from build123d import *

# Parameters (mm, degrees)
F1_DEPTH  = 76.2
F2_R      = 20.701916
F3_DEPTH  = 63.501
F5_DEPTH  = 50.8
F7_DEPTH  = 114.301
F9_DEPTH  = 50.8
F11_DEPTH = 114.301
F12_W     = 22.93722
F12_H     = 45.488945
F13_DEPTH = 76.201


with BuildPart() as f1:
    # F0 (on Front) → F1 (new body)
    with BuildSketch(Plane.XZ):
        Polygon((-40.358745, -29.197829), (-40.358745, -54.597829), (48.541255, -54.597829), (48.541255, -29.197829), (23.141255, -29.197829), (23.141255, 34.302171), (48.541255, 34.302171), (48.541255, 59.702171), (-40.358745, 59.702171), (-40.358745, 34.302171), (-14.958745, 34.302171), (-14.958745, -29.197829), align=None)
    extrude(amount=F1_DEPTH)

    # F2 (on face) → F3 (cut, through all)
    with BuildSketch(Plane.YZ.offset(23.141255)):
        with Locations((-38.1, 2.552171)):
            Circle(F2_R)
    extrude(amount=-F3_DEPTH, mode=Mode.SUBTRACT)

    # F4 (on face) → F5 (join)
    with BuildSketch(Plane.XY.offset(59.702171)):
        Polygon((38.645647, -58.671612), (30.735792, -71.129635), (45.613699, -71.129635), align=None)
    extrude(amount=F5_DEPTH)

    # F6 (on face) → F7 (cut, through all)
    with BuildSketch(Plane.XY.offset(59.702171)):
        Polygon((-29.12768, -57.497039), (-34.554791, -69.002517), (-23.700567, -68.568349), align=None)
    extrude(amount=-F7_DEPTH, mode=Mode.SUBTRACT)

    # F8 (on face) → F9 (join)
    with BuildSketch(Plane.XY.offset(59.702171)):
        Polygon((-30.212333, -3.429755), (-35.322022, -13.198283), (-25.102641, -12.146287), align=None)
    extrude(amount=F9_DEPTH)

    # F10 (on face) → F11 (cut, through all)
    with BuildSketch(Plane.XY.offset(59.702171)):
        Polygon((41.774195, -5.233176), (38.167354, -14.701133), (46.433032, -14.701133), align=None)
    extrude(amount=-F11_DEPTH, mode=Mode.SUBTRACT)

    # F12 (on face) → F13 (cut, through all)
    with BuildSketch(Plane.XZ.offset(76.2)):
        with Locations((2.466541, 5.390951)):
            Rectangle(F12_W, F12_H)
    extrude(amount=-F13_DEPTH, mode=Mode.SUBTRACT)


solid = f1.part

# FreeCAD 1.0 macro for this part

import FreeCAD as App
import Part
import Sketcher

V = App.Vector
Q = App.Units.Quantity

doc = App.newDocument("Part")
body = doc.addObject("PartDesign::Body", "Body")

sketch1 = body.newObject("Sketcher::SketchObject", "Sketch")
sketch1.AttachmentSupport = (doc.getObject("XZ_Plane"), [""])
sketch1.MapMode = "FlatFace"
sketch1.addGeometry([
    Part.LineSegment(V(-40, -29, 0), V(-40, -55, 0)),
    Part.LineSegment(V(-40, -55, 0), V(49, -55, 0)),
    Part.LineSegment(V(49, -55, 0), V(49, -29, 0)),
    Part.LineSegment(V(49, -29, 0), V(23, -29, 0)),
    Part.LineSegment(V(23, -29, 0), V(23, 34, 0)),
    Part.LineSegment(V(23, 34, 0), V(49, 34, 0)),
    Part.LineSegment(V(49, 34, 0), V(49, 60, 0)),
    Part.LineSegment(V(49, 60, 0), V(-40, 60, 0)),
    Part.LineSegment(V(-40, 60, 0), V(-40, 34, 0)),
    Part.LineSegment(V(-40, 34, 0), V(-15, 34, 0)),
    Part.LineSegment(V(-15, 34, 0), V(-15, -29, 0)),
    Part.LineSegment(V(-15, -29, 0), V(-40, -29, 0)),
], False)
sketch1.addConstraint([
    Sketcher.Constraint("Coincident", 0, 2, 1, 1),
    Sketcher.Constraint("Coincident", 1, 2, 2, 1),
    Sketcher.Constraint("Coincident", 2, 2, 3, 1),
    Sketcher.Constraint("Coincident", 3, 2, 4, 1),
    Sketcher.Constraint("Coincident", 4, 2, 5, 1),
    Sketcher.Constraint("Coincident", 5, 2, 6, 1),
    Sketcher.Constraint("Coincident", 6, 2, 7, 1),
    Sketcher.Constraint("Coincident", 7, 2, 8, 1),
    Sketcher.Constraint("Coincident", 8, 2, 9, 1),
    Sketcher.Constraint("Coincident", 9, 2, 10, 1),
    Sketcher.Constraint("Coincident", 10, 2, 11, 1),
    Sketcher.Constraint("Coincident", 11, 2, 0, 1),
    Sketcher.Constraint("Vertical", 0),
    Sketcher.Constraint("Horizontal", 1),
    Sketcher.Constraint("Vertical", 2),
    Sketcher.Constraint("Horizontal", 3),
    Sketcher.Constraint("Vertical", 4),
    Sketcher.Constraint("Horizontal", 5),
    Sketcher.Constraint("Vertical", 6),
    Sketcher.Constraint("Horizontal", 7),
    Sketcher.Constraint("Vertical", 8),
    Sketcher.Constraint("Horizontal", 9),
    Sketcher.Constraint("Vertical", 10),
    Sketcher.Constraint("Horizontal", 11),
    Sketcher.Constraint("Horizontal", 5, 2, 8, 2),
    Sketcher.Constraint("Horizontal", 3, 2, 10, 2),
    Sketcher.Constraint("Vertical", 2, 2, 5, 2),
    Sketcher.Constraint("Vertical", 0, 2, 7, 2),
    Sketcher.Constraint("Equal", 5, 9),
    Sketcher.Constraint("Equal", 11, 0),
    Sketcher.Constraint("Equal", 2, 6),
    Sketcher.Constraint("DistanceX", 3, 2, 3, 1, Q("1 in")),
    Sketcher.Constraint("DistanceX", 1, 1, 1, 2, Q("3.5 in")),
    Sketcher.Constraint("DistanceY", 4, 1, 4, 2, Q("2.5 in")),
    Sketcher.Constraint("DistanceY", 0, 2, -1, 1, 54.597829),
    Sketcher.Constraint("DistanceX", 0, 2, -1, 1, 40.358745),
])
pad1 = body.newObject("PartDesign::Pad", "Pad")
pad1.Profile = sketch1
pad1.Length = Q("3 in")

sketch2 = body.newObject("Sketcher::SketchObject", "Sketch001")
sketch2.AttachmentSupport = (doc.getObject("YZ_Plane"), [""])
sketch2.MapMode = "FlatFace"
sketch2.AttachmentOffset = App.Placement(V(0, 0, 23.141255), App.Rotation())
sketch2.addGeometry(Part.Circle(V(-38, 3, 0), V(0, 0, 1), 21), False)
sketch2.addConstraint([
    Sketcher.Constraint("DistanceX", 0, 3, -1, 1, Q("1.5 in")),
    Sketcher.Constraint("Diameter", 0, 41.403832),
    Sketcher.Constraint("DistanceY", -1, 1, 0, 3, 2.552171),
])
pocket1 = body.newObject("PartDesign::Pocket", "Pocket")
pocket1.Profile = sketch2
pocket1.Type = "ThroughAll"

sketch3 = body.newObject("Sketcher::SketchObject", "Sketch002")
sketch3.AttachmentSupport = (doc.getObject("XY_Plane"), [""])
sketch3.MapMode = "FlatFace"
sketch3.AttachmentOffset = App.Placement(V(0, 0, 59.702171), App.Rotation())
sketch3.addGeometry([
    Part.LineSegment(V(39, -59, 0), V(31, -71, 0)),
    Part.LineSegment(V(31, -71, 0), V(46, -71, 0)),
    Part.LineSegment(V(46, -71, 0), V(39, -59, 0)),
], False)
sketch3.addConstraint([
    Sketcher.Constraint("Coincident", 0, 2, 1, 1),
    Sketcher.Constraint("Coincident", 1, 2, 2, 1),
    Sketcher.Constraint("Coincident", 2, 2, 0, 1),
    Sketcher.Constraint("Horizontal", 1),
    Sketcher.Constraint("DistanceX", -1, 1, 1, 2, 45.613699),
    Sketcher.Constraint("Distance", 0, 14.756969),
    Sketcher.Constraint("DistanceX", 1, 1, 1, 2, 14.877907),
    Sketcher.Constraint("Distance", 2, 14.274316),
    Sketcher.Constraint("DistanceY", 0, 2, -1, 1, 71.129635),
])
pad2 = body.newObject("PartDesign::Pad", "Pad001")
pad2.Profile = sketch3
pad2.Length = Q("2 in")

sketch4 = body.newObject("Sketcher::SketchObject", "Sketch003")
sketch4.AttachmentSupport = (doc.getObject("XY_Plane"), [""])
sketch4.MapMode = "FlatFace"
sketch4.AttachmentOffset = App.Placement(V(0, 0, 59.702171), App.Rotation())
sketch4.addGeometry([
    Part.LineSegment(V(-29, -57, 0), V(-35, -69, 0)),
    Part.LineSegment(V(-35, -69, 0), V(-24, -69, 0)),
    Part.LineSegment(V(-24, -69, 0), V(-29, -57, 0)),
], False)
sketch4.addConstraint([
    Sketcher.Constraint("Coincident", 0, 2, 1, 1),
    Sketcher.Constraint("Coincident", 1, 2, 2, 1),
    Sketcher.Constraint("Coincident", 2, 2, 0, 1),
    Sketcher.Constraint("Distance", 2, 12.329942),
    Sketcher.Constraint("DistanceX", 0, 2, -1, 1, 34.554791),
    Sketcher.Constraint("DistanceY", 1, 2, -1, 1, 68.568349),
    Sketcher.Constraint("DistanceX", 2, 2, -1, 1, 29.12768),
    Sketcher.Constraint("DistanceY", 2, 2, -1, 1, 57.497039),
    Sketcher.Constraint("Distance", 0, 12.721225),
])
pocket2 = body.newObject("PartDesign::Pocket", "Pocket001")
pocket2.Profile = sketch4
pocket2.Type = "ThroughAll"

sketch5 = body.newObject("Sketcher::SketchObject", "Sketch004")
sketch5.AttachmentSupport = (doc.getObject("XY_Plane"), [""])
sketch5.MapMode = "FlatFace"
sketch5.AttachmentOffset = App.Placement(V(0, 0, 59.702171), App.Rotation())
sketch5.addGeometry([
    Part.LineSegment(V(-30, -3, 0), V(-35, -13, 0)),
    Part.LineSegment(V(-35, -13, 0), V(-25, -12, 0)),
    Part.LineSegment(V(-25, -12, 0), V(-30, -3, 0)),
], False)
sketch5.addConstraint([
    Sketcher.Constraint("Coincident", 0, 2, 1, 1),
    Sketcher.Constraint("Coincident", 1, 2, 2, 1),
    Sketcher.Constraint("Coincident", 2, 2, 0, 1),
    Sketcher.Constraint("DistanceX", 0, 2, -1, 1, 35.322022),
    Sketcher.Constraint("DistanceX", 1, 2, -1, 1, 25.102641),
    Sketcher.Constraint("DistanceY", 1, 2, 2, 2, 8.716532),
    Sketcher.Constraint("DistanceX", 0, 2, 2, 2, 5.109689),
    Sketcher.Constraint("Distance", 0, 11.024203),
    Sketcher.Constraint("DistanceY", 0, 2, -1, 1, 13.198283),
])
pad3 = body.newObject("PartDesign::Pad", "Pad002")
pad3.Profile = sketch5
pad3.Length = Q("2 in")

sketch6 = body.newObject("Sketcher::SketchObject", "Sketch005")
sketch6.AttachmentSupport = (doc.getObject("XY_Plane"), [""])
sketch6.MapMode = "FlatFace"
sketch6.AttachmentOffset = App.Placement(V(0, 0, 59.702171), App.Rotation())
sketch6.addGeometry([
    Part.LineSegment(V(42, -5, 0), V(38, -15, 0)),
    Part.LineSegment(V(38, -15, 0), V(46, -15, 0)),
    Part.LineSegment(V(46, -15, 0), V(42, -5, 0)),
], False)
sketch6.addConstraint([
    Sketcher.Constraint("Coincident", 0, 2, 1, 1),
    Sketcher.Constraint("Coincident", 1, 2, 2, 1),
    Sketcher.Constraint("Coincident", 2, 2, 0, 1),
    Sketcher.Constraint("Horizontal", 1),
    Sketcher.Constraint("Distance", 0, 10.131708),
    Sketcher.Constraint("DistanceX", 1, 1, 1, 2, 8.265678),
    Sketcher.Constraint("DistanceX", -1, 1, 1, 2, 46.433032),
    Sketcher.Constraint("DistanceX", 0, 2, 2, 2, 3.606841),
    Sketcher.Constraint("DistanceY", 0, 2, -1, 1, 14.701133),
])
pocket3 = body.newObject("PartDesign::Pocket", "Pocket002")
pocket3.Profile = sketch6
pocket3.Type = "ThroughAll"

sketch7 = body.newObject("Sketcher::SketchObject", "Sketch006")
sketch7.AttachmentSupport = (doc.getObject("XZ_Plane"), [""])
sketch7.MapMode = "FlatFace"
sketch7.AttachmentOffset = App.Placement(V(0, 0, 3 * 25.4), App.Rotation())
sketch7.addGeometry([
    Part.LineSegment(V(-9, 28, 0), V(-9, -17, 0)),
    Part.LineSegment(V(-9, -17, 0), V(14, -17, 0)),
    Part.LineSegment(V(14, -17, 0), V(14, 28, 0)),
    Part.LineSegment(V(14, 28, 0), V(-9, 28, 0)),
], False)
sketch7.addConstraint([
    Sketcher.Constraint("Coincident", 0, 2, 1, 1),
    Sketcher.Constraint("Coincident", 1, 2, 2, 1),
    Sketcher.Constraint("Coincident", 2, 2, 3, 1),
    Sketcher.Constraint("Coincident", 3, 2, 0, 1),
    Sketcher.Constraint("Vertical", 0),
    Sketcher.Constraint("Horizontal", 1),
    Sketcher.Constraint("Vertical", 2),
    Sketcher.Constraint("Horizontal", 3),
    Sketcher.Constraint("DistanceX", 1, 1, 1, 2, 22.93722),
    Sketcher.Constraint("DistanceY", 0, 2, 0, 1, 45.488945),
    Sketcher.Constraint("DistanceX", 0, 2, -1, 1, 9.002069),
    Sketcher.Constraint("DistanceY", 0, 2, -1, 1, 17.353521),
])
pocket4 = body.newObject("PartDesign::Pocket", "Pocket003")
pocket4.Profile = sketch7
pocket4.Type = "ThroughAll"

doc.recompute()
